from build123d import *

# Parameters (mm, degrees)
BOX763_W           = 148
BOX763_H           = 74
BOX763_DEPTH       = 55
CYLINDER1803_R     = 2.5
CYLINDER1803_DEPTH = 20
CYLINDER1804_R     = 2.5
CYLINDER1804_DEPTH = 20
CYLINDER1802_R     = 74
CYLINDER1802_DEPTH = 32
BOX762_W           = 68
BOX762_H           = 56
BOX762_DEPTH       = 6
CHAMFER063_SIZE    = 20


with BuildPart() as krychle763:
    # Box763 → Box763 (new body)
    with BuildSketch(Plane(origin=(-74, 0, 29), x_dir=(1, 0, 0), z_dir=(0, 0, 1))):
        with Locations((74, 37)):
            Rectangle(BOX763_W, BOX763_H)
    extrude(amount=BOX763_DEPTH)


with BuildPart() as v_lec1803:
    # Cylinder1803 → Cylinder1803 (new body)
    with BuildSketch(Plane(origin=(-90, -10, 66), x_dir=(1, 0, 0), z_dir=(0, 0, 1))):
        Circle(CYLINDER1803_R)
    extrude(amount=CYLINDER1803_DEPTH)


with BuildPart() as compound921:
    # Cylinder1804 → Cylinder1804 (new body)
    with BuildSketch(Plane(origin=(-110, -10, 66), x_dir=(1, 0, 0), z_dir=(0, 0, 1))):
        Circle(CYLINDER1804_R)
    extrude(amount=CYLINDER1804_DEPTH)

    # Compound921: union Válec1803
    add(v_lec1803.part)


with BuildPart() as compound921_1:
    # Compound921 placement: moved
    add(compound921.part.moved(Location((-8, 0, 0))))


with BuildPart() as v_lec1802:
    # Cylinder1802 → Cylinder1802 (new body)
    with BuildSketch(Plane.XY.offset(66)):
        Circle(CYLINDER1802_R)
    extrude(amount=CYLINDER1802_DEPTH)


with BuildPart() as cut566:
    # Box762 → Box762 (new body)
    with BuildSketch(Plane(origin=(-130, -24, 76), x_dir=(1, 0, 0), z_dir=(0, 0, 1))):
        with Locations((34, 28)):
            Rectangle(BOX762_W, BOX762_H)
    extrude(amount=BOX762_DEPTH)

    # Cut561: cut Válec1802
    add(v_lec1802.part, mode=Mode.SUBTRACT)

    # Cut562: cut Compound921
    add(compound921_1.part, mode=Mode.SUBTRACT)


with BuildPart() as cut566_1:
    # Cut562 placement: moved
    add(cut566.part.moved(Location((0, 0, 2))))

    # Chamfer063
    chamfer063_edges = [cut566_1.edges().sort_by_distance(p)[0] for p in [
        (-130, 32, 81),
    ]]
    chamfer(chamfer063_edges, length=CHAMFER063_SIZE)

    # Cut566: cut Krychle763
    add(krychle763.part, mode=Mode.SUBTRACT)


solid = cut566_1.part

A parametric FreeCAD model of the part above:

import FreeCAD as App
import Part
import Sketcher

V = App.Vector


def edges_at(feature, points):
    """Names of the edges that pass closest to the given points."""
    edges = feature.Shape.Edges
    near = lambda p: min(range(len(edges)), key=lambda i: edges[i].distToShape(Part.Vertex(*p))[0])
    return sorted({f"Edge{near(p) + 1}" for p in points})

doc = App.newDocument("Part")
body = doc.addObject("PartDesign::Body", "Body")

sketch1 = body.newObject("Sketcher::SketchObject", "Sketch")
sketch1.AttachmentSupport = (doc.getObject("XY_Plane"), [""])
sketch1.MapMode = "FlatFace"
sketch1.AttachmentOffset = App.Placement(V(0, 0, 29), App.Rotation())
sketch1.addGeometry([
    Part.LineSegment(V(-74, 74, 0), V(-74, 0, 0)),
    Part.LineSegment(V(-74, 0, 0), V(74, 0, 0)),
    Part.LineSegment(V(74, 0, 0), V(74, 74, 0)),
    Part.LineSegment(V(74, 74, 0), V(-74, 74, 0)),
], False)
sketch1.addConstraint([
    Sketcher.Constraint("Coincident", 0, 2, 1, 1),
    Sketcher.Constraint("Coincident", 1, 2, 2, 1),
    Sketcher.Constraint("Coincident", 2, 2, 3, 1),
    Sketcher.Constraint("Coincident", 3, 2, 0, 1),
    Sketcher.Constraint("Vertical", 0),
    Sketcher.Constraint("Horizontal", 1),
    Sketcher.Constraint("Vertical", 2),
    Sketcher.Constraint("Horizontal", 3),
    Sketcher.Constraint("Symmetric", 0, 2, 1, 2, -1, 1),
    Sketcher.Constraint("DistanceX", 1, 1, 1, 2, 148.0),
    Sketcher.Constraint("DistanceY", 0, 2, 0, 1, 74.0),
])
pad1 = body.newObject("PartDesign::Pad", "Pad")
pad1.Profile = sketch1
pad1.Length = 55
body2 = doc.addObject("PartDesign::Body", "Body001")

sketch2 = body2.newObject("Sketcher::SketchObject", "Sketch001")
sketch2.AttachmentSupport = (doc.getObject("XY_Plane001"), [""])
sketch2.MapMode = "FlatFace"
sketch2.AttachmentOffset = App.Placement(V(0, 0, 66), App.Rotation())
sketch2.addGeometry(Part.Circle(V(-90, -10, 0), V(0, 0, 1), 2.5), False)
sketch2.addConstraint([
    Sketcher.Constraint("Diameter", 0, 5.0),
    Sketcher.Constraint("DistanceX", 0, 3, -1, 1, 90.0),
    Sketcher.Constraint("DistanceY", 0, 3, -1, 1, 10.0),
])
pad2 = body2.newObject("PartDesign::Pad", "Pad001")
pad2.Profile = sketch2
pad2.Length = 20
body3 = doc.addObject("PartDesign::Body", "Body002")
body3.AllowCompound = True

sketch3 = body3.newObject("Sketcher::SketchObject", "Sketch002")
sketch3.AttachmentSupport = (doc.getObject("XY_Plane002"), [""])
sketch3.MapMode = "FlatFace"
sketch3.AttachmentOffset = App.Placement(V(0, 0, 66), App.Rotation())
sketch3.addGeometry(Part.Circle(V(-110, -10, 0), V(0, 0, 1), 2.5), False)
sketch3.addConstraint([
    Sketcher.Constraint("Diameter", 0, 5.0),
    Sketcher.Constraint("DistanceX", 0, 3, -1, 1, 110.0),
    Sketcher.Constraint("DistanceY", 0, 3, -1, 1, 10.0),
])
pad3 = body3.newObject("PartDesign::Pad", "Pad002")
pad3.Profile = sketch3
pad3.Length = 20
doc.recompute()

boolean = body3.newObject("PartDesign::Boolean", "Boolean")
boolean.Type = "Fuse"
boolean.addObjects([body2])
body4 = doc.addObject("PartDesign::Body", "Body003")
body4.AllowCompound = True
doc.recompute()

body3.Placement = App.Placement(V(-8, 0, 0), App.Rotation(V(0, 0, 1), 0))
boolean2 = body4.newObject("PartDesign::Boolean", "Boolean001")
boolean2.Type = "Fuse"
boolean2.addObjects([body3])
body5 = doc.addObject("PartDesign::Body", "Body004")

sketch4 = body5.newObject("Sketcher::SketchObject", "Sketch003")
sketch4.AttachmentSupport = (doc.getObject("XY_Plane004"), [""])
sketch4.MapMode = "FlatFace"
sketch4.AttachmentOffset = App.Placement(V(0, 0, 66), App.Rotation())
sketch4.addGeometry(Part.Circle(V(0, 0, 0), V(0, 0, 1), 74), False)
sketch4.addConstraint([
    Sketcher.Constraint("Coincident", 0, 3, -1, 1),
    Sketcher.Constraint("Diameter", 0, 148.0),
])
pad4 = body5.newObject("PartDesign::Pad", "Pad003")
pad4.Profile = sketch4
pad4.Length = 32
body6 = doc.addObject("PartDesign::Body", "Body005")

sketch5 = body6.newObject("Sketcher::SketchObject", "Sketch004")
sketch5.AttachmentSupport = (doc.getObject("XY_Plane005"), [""])
sketch5.MapMode = "FlatFace"
sketch5.AttachmentOffset = App.Placement(V(0, 0, 76), App.Rotation())
sketch5.addGeometry([
    Part.LineSegment(V(-130, 32, 0), V(-130, -24, 0)),
    Part.LineSegment(V(-130, -24, 0), V(-62, -24, 0)),
    Part.LineSegment(V(-62, -24, 0), V(-62, 32, 0)),
    Part.LineSegment(V(-62, 32, 0), V(-130, 32, 0)),
], False)
sketch5.addConstraint([
    Sketcher.Constraint("Coincident", 0, 2, 1, 1),
    Sketcher.Constraint("Coincident", 1, 2, 2, 1),
    Sketcher.Constraint("Coincident", 2, 2, 3, 1),
    Sketcher.Constraint("Coincident", 3, 2, 0, 1),
    Sketcher.Constraint("Vertical", 0),
    Sketcher.Constraint("Horizontal", 1),
    Sketcher.Constraint("Vertical", 2),
    Sketcher.Constraint("Horizontal", 3),
    Sketcher.Constraint("DistanceX", 1, 1, 1, 2, 68.0),
    Sketcher.Constraint("DistanceY", 0, 2, 0, 1, 56.0),
    Sketcher.Constraint("DistanceX", 0, 2, -1, 1, 130.0),
    Sketcher.Constraint("DistanceY", 0, 2, -1, 1, 24.0),
])
pad5 = body6.newObject("PartDesign::Pad", "Pad004")
pad5.Profile = sketch5
pad5.Length = 6
doc.recompute()

boolean3 = body6.newObject("PartDesign::Boolean", "Boolean002")
boolean3.Type = "Cut"
boolean3.addObjects([body5])
doc.recompute()

boolean4 = body6.newObject("PartDesign::Boolean", "Boolean003")
boolean4.Type = "Cut"
boolean4.addObjects([body4])
body7 = doc.addObject("PartDesign::Body", "Body006")
doc.recompute()

body6.Placement = App.Placement(V(0, 0, 2), App.Rotation(V(0, 0, 1), 0))
boolean5 = body7.newObject("PartDesign::Boolean", "Boolean004")
boolean5.Type = "Fuse"
boolean5.addObjects([body6])
doc.recompute()

chamfer = body7.newObject("PartDesign::Chamfer", "Chamfer")
chamfer.Base = (boolean5, edges_at(boolean5, [(-130, 32, 81)]))
chamfer.Size = 20
doc.recompute()

boolean6 = body7.newObject("PartDesign::Boolean", "Boolean005")
boolean6.Type = "Cut"
boolean6.addObjects([body])

doc.recompute()
